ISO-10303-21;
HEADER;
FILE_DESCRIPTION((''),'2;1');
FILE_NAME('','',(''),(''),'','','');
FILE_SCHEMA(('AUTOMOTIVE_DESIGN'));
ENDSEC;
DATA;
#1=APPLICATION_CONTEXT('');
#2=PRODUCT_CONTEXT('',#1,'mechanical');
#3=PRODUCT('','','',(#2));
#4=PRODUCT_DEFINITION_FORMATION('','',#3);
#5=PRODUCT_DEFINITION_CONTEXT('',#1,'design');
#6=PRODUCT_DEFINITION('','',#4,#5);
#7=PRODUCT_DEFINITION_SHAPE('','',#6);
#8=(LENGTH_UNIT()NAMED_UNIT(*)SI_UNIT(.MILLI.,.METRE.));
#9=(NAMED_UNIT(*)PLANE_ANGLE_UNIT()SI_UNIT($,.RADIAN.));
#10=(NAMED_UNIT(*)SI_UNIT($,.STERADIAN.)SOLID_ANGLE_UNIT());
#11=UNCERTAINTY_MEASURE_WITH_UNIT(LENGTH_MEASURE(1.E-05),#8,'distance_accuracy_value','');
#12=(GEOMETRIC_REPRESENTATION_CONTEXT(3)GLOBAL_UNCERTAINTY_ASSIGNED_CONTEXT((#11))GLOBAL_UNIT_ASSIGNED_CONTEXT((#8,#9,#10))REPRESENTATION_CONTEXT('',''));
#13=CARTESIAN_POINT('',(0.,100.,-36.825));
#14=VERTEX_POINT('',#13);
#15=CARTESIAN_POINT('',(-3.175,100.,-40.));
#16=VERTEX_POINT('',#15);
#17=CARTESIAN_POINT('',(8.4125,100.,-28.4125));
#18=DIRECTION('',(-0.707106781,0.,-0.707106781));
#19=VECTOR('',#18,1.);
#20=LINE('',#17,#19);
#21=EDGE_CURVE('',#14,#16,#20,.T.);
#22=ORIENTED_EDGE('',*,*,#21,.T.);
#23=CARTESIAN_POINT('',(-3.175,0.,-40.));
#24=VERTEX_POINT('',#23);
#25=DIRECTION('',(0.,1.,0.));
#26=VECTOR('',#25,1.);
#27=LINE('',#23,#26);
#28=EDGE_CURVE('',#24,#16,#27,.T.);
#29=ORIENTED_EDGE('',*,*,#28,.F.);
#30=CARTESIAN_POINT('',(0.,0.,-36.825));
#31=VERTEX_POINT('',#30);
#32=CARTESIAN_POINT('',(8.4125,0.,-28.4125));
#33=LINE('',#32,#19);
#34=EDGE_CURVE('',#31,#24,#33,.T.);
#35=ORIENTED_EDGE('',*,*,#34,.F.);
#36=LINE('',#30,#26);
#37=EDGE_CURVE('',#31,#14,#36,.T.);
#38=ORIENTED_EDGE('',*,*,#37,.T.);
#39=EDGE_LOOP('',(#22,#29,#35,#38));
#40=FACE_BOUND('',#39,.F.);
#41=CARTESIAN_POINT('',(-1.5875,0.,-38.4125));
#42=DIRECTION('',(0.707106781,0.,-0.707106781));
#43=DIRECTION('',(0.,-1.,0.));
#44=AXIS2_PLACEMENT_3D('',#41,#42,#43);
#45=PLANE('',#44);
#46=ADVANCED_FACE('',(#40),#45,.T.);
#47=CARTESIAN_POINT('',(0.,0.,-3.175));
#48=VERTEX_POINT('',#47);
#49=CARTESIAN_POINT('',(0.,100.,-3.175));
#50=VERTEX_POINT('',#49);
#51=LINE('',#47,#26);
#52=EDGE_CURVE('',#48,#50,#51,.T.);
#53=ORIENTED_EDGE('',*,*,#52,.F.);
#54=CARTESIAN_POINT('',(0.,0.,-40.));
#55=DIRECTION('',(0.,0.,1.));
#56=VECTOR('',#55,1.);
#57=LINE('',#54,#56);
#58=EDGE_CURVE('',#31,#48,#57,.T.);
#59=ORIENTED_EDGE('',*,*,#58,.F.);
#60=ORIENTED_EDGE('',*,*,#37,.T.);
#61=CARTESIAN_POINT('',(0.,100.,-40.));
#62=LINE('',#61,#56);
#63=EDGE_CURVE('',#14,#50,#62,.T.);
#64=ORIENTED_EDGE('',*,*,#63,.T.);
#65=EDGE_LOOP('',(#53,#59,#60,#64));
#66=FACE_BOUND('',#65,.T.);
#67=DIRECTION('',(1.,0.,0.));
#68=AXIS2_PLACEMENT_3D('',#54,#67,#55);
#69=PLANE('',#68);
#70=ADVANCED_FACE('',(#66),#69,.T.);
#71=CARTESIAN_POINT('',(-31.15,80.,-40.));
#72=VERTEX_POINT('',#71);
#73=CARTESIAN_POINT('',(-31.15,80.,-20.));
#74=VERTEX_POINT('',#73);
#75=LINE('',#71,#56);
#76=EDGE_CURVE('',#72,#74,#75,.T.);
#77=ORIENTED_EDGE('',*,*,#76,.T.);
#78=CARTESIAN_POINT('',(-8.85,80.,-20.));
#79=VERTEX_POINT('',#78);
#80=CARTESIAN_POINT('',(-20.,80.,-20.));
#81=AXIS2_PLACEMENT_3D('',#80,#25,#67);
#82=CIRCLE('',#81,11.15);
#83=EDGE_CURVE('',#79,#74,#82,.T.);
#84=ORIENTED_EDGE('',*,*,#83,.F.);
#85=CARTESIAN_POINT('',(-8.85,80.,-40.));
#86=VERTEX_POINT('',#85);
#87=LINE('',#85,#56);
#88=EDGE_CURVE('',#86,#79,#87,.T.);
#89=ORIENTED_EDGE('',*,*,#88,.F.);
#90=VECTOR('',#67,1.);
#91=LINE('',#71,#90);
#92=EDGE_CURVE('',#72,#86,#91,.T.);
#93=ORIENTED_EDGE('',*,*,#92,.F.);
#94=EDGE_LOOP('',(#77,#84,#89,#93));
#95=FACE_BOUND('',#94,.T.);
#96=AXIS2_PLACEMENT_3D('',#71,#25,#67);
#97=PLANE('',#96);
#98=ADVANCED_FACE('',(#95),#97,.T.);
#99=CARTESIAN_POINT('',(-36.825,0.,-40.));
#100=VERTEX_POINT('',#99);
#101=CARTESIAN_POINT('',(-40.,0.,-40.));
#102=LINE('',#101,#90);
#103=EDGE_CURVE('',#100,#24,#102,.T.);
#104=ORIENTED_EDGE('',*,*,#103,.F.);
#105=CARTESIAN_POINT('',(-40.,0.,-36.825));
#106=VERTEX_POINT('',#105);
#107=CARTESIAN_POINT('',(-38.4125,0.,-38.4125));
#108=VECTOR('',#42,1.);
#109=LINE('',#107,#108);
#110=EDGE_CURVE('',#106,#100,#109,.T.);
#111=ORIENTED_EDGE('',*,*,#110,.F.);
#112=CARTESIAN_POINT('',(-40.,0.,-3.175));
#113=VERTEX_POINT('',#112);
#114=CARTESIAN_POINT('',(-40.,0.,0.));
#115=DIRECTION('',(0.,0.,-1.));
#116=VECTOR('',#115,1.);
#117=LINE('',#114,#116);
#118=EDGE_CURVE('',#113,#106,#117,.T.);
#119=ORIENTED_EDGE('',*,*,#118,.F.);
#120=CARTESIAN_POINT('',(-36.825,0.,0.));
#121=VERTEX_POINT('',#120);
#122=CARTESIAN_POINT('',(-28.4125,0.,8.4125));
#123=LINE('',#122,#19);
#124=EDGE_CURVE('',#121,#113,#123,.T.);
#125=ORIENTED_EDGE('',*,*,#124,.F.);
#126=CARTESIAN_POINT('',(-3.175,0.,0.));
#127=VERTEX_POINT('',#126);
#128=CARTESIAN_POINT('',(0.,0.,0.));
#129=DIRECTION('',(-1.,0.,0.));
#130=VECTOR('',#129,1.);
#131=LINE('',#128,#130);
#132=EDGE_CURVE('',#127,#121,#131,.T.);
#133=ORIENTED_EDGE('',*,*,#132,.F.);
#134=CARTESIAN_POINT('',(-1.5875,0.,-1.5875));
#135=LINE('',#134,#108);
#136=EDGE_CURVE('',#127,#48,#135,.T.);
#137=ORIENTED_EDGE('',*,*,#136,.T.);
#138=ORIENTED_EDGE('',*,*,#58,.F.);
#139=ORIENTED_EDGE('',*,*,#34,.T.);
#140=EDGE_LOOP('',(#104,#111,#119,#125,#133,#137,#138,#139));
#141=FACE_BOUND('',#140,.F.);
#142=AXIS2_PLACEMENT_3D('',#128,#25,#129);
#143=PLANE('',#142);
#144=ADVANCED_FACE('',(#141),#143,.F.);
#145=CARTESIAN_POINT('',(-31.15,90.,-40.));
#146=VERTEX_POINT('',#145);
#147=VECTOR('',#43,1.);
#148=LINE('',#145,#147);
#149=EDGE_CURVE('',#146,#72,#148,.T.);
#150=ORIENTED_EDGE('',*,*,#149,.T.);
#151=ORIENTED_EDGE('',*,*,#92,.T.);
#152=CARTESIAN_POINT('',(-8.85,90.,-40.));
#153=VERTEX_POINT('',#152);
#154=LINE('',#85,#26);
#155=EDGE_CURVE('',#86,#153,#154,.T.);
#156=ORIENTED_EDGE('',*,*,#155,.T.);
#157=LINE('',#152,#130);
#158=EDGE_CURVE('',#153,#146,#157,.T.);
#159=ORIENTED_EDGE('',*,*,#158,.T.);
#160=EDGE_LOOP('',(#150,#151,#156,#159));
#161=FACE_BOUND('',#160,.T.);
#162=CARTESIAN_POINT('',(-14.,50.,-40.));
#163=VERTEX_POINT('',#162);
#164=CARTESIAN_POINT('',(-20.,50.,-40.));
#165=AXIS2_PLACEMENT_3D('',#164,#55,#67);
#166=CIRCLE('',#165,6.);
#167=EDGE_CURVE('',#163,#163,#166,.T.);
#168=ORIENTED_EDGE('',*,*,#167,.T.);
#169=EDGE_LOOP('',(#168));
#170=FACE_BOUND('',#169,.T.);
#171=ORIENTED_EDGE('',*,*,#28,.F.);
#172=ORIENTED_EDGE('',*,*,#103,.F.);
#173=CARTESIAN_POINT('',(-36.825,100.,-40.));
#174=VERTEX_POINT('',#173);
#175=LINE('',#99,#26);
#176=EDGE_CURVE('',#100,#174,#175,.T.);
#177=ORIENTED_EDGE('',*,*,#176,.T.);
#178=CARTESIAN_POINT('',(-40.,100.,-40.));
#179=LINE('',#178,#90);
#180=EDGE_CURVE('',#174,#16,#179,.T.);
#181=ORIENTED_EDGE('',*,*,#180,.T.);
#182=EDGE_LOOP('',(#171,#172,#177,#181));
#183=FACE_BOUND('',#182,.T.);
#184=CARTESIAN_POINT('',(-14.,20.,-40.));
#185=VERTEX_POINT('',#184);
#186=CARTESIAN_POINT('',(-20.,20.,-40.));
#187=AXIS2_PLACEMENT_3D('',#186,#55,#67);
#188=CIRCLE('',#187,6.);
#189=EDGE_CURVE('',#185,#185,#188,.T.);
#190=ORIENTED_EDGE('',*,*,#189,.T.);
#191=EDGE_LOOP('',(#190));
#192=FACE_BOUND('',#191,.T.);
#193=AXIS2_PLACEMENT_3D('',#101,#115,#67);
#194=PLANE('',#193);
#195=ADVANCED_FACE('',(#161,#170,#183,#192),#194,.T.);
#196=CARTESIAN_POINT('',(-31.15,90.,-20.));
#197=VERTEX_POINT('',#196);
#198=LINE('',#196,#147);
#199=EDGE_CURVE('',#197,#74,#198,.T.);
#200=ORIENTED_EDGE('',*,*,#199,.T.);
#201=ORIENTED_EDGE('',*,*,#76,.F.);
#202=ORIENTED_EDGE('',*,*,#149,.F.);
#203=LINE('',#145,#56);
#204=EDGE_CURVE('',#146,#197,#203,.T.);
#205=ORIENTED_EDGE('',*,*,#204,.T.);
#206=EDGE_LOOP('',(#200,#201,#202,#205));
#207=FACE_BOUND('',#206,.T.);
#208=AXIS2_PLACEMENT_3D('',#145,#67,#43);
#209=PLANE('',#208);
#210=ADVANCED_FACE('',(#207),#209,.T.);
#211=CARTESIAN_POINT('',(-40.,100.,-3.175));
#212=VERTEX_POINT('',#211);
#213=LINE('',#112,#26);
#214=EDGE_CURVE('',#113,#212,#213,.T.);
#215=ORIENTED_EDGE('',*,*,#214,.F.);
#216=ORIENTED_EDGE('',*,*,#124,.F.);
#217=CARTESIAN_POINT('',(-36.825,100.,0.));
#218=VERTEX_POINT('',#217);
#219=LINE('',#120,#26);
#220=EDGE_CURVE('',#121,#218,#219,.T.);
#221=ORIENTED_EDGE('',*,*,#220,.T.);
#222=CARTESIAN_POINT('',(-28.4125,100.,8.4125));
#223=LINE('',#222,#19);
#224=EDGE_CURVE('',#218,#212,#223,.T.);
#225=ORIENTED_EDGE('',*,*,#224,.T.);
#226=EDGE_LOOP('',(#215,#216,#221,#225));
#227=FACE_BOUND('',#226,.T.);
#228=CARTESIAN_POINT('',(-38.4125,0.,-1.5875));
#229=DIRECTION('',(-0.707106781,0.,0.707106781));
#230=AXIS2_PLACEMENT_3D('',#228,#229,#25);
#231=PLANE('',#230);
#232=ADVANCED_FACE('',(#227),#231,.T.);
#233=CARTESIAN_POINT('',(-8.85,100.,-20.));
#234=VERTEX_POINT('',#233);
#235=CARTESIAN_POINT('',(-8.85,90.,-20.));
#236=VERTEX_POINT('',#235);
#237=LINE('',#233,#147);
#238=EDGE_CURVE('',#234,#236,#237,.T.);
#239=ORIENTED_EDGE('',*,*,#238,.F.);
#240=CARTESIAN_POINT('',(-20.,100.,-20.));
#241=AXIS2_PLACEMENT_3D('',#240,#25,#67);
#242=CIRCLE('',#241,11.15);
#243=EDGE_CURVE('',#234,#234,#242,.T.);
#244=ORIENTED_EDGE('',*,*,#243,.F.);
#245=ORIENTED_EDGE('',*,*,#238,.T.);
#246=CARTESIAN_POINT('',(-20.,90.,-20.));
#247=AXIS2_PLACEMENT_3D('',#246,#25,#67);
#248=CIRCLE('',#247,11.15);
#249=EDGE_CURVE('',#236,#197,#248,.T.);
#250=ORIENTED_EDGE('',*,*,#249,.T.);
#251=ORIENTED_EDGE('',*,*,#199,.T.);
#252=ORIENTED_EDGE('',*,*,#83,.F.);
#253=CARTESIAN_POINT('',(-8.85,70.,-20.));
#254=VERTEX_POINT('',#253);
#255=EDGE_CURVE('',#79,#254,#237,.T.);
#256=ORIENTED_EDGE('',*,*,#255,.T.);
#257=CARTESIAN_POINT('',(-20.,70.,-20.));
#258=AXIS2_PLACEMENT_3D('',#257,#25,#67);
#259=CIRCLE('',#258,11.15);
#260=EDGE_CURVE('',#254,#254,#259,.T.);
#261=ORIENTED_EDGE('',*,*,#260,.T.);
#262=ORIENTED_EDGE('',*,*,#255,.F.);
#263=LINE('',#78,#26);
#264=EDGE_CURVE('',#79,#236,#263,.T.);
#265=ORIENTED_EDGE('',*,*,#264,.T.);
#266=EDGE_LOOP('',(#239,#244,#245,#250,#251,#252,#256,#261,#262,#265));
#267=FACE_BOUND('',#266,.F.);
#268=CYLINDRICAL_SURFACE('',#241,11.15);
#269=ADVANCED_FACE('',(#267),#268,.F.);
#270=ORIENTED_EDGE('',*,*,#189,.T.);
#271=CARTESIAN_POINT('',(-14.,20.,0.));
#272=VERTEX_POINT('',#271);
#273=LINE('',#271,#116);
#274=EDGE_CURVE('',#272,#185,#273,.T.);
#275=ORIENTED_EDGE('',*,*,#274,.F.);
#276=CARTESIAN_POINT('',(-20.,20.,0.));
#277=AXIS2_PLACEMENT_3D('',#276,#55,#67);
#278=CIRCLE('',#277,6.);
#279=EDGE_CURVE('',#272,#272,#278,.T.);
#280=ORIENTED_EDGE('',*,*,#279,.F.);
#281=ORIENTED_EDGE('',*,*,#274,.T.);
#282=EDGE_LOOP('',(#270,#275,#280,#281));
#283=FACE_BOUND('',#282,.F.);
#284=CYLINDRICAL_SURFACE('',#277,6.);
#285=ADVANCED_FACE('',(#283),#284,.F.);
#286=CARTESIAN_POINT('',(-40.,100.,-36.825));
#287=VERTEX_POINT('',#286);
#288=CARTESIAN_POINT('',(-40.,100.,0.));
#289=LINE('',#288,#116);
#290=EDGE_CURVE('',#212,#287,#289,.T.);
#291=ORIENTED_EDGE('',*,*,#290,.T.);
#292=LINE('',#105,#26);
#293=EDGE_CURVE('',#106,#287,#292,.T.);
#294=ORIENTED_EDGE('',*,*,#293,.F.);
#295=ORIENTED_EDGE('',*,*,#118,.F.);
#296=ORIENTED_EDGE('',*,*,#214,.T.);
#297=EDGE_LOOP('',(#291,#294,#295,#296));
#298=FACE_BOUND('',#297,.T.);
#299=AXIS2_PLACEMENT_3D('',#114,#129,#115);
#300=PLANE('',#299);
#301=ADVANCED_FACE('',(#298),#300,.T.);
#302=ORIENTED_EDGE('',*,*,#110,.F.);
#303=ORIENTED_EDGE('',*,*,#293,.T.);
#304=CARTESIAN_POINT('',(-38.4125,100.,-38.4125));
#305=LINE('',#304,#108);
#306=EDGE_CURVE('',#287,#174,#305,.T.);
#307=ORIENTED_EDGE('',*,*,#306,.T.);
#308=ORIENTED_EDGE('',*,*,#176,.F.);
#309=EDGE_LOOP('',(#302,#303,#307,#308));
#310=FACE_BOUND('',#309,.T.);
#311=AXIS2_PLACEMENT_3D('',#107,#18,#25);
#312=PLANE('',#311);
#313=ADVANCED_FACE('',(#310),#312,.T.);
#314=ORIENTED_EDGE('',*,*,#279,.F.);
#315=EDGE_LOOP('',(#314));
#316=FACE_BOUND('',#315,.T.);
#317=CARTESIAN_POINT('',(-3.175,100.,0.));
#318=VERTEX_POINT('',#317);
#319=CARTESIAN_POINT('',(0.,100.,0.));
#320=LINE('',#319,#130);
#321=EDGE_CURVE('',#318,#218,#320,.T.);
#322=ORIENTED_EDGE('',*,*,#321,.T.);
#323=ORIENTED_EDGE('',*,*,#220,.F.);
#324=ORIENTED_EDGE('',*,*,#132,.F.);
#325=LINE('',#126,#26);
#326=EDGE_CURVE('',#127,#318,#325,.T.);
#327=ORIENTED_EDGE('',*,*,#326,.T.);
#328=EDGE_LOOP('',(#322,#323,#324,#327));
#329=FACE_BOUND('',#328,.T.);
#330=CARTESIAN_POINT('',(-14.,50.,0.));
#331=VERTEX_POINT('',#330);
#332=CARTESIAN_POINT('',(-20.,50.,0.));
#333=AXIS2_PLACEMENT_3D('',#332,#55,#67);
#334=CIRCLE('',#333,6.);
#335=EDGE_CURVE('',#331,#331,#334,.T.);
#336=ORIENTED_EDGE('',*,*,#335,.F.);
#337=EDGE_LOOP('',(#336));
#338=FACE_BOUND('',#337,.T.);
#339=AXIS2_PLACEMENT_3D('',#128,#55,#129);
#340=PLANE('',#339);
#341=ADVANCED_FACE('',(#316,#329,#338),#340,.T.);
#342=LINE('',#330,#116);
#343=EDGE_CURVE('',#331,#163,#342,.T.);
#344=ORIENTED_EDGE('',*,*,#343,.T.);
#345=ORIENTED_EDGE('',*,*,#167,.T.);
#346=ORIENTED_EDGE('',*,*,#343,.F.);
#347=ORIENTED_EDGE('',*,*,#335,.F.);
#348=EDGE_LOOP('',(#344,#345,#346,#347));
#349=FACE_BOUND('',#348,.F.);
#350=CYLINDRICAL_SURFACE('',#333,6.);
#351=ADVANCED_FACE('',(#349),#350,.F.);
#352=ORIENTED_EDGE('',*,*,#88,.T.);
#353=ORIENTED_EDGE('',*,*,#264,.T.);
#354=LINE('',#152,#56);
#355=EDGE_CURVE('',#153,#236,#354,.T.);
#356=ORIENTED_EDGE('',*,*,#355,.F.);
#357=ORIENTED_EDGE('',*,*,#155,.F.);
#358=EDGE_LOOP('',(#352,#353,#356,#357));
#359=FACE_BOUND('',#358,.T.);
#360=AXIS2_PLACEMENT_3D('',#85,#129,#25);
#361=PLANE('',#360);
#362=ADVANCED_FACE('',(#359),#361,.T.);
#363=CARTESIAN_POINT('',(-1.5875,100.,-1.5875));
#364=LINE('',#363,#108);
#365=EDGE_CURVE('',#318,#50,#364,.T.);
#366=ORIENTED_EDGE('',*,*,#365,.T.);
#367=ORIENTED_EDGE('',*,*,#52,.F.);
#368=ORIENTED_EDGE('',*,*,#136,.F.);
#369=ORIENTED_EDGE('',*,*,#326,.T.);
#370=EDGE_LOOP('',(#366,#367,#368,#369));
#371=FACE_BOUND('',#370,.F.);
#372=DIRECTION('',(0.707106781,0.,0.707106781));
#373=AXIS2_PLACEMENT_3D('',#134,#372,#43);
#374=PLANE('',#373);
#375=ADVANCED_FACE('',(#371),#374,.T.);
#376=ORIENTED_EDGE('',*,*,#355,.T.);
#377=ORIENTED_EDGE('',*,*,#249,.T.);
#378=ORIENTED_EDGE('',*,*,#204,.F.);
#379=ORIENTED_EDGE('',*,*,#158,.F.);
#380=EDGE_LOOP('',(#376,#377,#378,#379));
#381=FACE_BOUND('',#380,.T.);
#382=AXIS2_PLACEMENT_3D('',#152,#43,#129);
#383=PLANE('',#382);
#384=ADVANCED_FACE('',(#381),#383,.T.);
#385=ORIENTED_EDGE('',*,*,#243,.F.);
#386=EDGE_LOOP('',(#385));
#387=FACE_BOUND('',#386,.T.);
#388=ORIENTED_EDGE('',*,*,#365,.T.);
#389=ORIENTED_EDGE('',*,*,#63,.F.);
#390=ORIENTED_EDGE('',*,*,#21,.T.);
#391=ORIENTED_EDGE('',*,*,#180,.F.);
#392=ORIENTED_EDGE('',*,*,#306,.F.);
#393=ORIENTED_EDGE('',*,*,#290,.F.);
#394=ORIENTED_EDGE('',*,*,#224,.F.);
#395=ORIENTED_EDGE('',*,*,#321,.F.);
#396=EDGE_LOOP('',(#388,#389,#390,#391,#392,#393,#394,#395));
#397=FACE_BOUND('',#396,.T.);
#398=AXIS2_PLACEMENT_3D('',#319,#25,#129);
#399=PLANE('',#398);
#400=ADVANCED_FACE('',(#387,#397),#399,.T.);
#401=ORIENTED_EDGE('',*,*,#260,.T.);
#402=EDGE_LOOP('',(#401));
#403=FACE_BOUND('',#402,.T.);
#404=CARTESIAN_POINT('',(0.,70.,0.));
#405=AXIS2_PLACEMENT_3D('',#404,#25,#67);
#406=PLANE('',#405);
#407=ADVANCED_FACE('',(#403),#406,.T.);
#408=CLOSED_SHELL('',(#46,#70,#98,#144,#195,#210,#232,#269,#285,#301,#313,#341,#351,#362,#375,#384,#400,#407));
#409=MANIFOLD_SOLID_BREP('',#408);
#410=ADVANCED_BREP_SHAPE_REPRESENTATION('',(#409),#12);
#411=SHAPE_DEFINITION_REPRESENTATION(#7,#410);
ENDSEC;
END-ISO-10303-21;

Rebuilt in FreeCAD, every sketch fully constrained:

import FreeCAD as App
import Part
import Sketcher

V = App.Vector


def edges_at(feature, points):
    """Names of the edges that pass closest to the given points."""
    edges = feature.Shape.Edges
    near = lambda p: min(range(len(edges)), key=lambda i: edges[i].distToShape(Part.Vertex(*p))[0])
    return sorted({f"Edge{near(p) + 1}" for p in points})

doc = App.newDocument("Part")
params = doc.addObject("Spreadsheet::Sheet", "Params")
for row, (alias, value) in enumerate([
    ("sketch1_width", "40 mm"),
    ("pad1_length", "100 mm"),
    ("sketch2_diameter", "12 mm"),
    ("pocket1_length", "40 mm"),
    ("sketch3_diameter", "22.3 mm"),
    ("pocket2_length", "30 mm"),
    ("sketch4_height", "10 mm"),
    ("sketch4_width", "22.3 mm"),
    ("pocket3_length", "20 mm"),
    ("chamfer_size", "3.175 mm"),
], start=1):
    params.set(f"A{row}", alias)
    params.set(f"B{row}", "=" + value)
    params.setAlias(f"B{row}", alias)

body = doc.addObject("PartDesign::Body", "Body")

sketch1 = body.newObject("Sketcher::SketchObject", "Sketch")
sketch1.AttachmentSupport = (doc.getObject("XZ_Plane"), [""])
sketch1.MapMode = "FlatFace"
sketch1.addGeometry(Part.LineSegment(V(-40, 0, 0), V(0, 0, 0)), False)
sketch1.addGeometry(Part.LineSegment(V(0, 0, 0), V(0, -40, 0)), False)
sketch1.addGeometry(Part.LineSegment(V(0, -40, 0), V(-40, -40, 0)), False)
sketch1.addGeometry(Part.LineSegment(V(-40, -40, 0), V(-40, 0, 0)), False)
sketch1.addConstraint(Sketcher.Constraint("Coincident", 0, 2, 1, 1))
sketch1.addConstraint(Sketcher.Constraint("Coincident", 1, 2, 2, 1))
sketch1.addConstraint(Sketcher.Constraint("Coincident", 2, 2, 3, 1))
sketch1.addConstraint(Sketcher.Constraint("Coincident", 3, 2, 0, 1))
sketch1.addConstraint(Sketcher.Constraint("Horizontal", 0))
sketch1.addConstraint(Sketcher.Constraint("Vertical", 1))
sketch1.addConstraint(Sketcher.Constraint("Horizontal", 2))
sketch1.addConstraint(Sketcher.Constraint("Vertical", 3))
sketch1.addConstraint(Sketcher.Constraint("Coincident", 0, 2, -1, 1))
sketch1.addConstraint(Sketcher.Constraint("Equal", 2, 1))
sketch1.addConstraint(Sketcher.Constraint("DistanceX", 0, 1, 0, 2, 40.0))
sketch1.setExpression("Constraints[10]", "Params.sketch1_width")
pad1 = body.newObject("PartDesign::Pad", "Pad")
pad1.Profile = sketch1
pad1.setExpression("Length", "Params.pad1_length")
pad1.Reversed = True

sketch2 = body.newObject("Sketcher::SketchObject", "Sketch001")
sketch2.AttachmentSupport = (doc.getObject("XY_Plane"), [""])
sketch2.MapMode = "FlatFace"
sketch2.addGeometry(Part.Circle(V(-20, 20, 0), V(0, 0, 1), 6), False)
sketch2.addGeometry(Part.Circle(V(-20, 50, 0), V(0, 0, 1), 6), False)
sketch2.addConstraint(Sketcher.Constraint("Equal", 0, 1))
sketch2.addConstraint(Sketcher.Constraint("Vertical", 0, 3, 1, 3))
sketch2.addConstraint(Sketcher.Constraint("Diameter", 0, 12.0))
sketch2.addConstraint(Sketcher.Constraint("DistanceX", 0, 3, -1, 1, 20.0))
sketch2.addConstraint(Sketcher.Constraint("DistanceY", -1, 1, 0, 3, 20.0))
sketch2.addConstraint(Sketcher.Constraint("DistanceY", 0, 3, 1, 3, 30.0))
sketch2.setExpression("Constraints[2]", "Params.sketch2_diameter")
pocket1 = body.newObject("PartDesign::Pocket", "Pocket")
pocket1.Profile = sketch2
pocket1.setExpression("Length", "Params.pocket1_length")

sketch3 = body.newObject("Sketcher::SketchObject", "Sketch002")
sketch3.AttachmentSupport = (doc.getObject("XZ_Plane"), [""])
sketch3.MapMode = "FlatFace"
sketch3.AttachmentOffset = App.Placement(V(0, 0, -100), App.Rotation())
sketch3.addGeometry(Part.Circle(V(-20, -20, 0), V(0, 0, 1), 11), False)
sketch3.addConstraint(Sketcher.Constraint("Diameter", 0, 22.3))
sketch3.addConstraint(Sketcher.Constraint("DistanceX", 0, 3, -1, 1, 20.0))
sketch3.addConstraint(Sketcher.Constraint("DistanceY", 0, 3, -1, 1, 20.0))
sketch3.setExpression("Constraints[0]", "Params.sketch3_diameter")
pocket2 = body.newObject("PartDesign::Pocket", "Pocket001")
pocket2.Profile = sketch3
pocket2.setExpression("Length", "Params.pocket2_length")
pocket2.Reversed = True

sketch4 = body.newObject("Sketcher::SketchObject", "Sketch003")
sketch4.AttachmentSupport = (doc.getObject("XY_Plane"), [""])
sketch4.MapMode = "FlatFace"
sketch4.AttachmentOffset = App.Placement(V(0, 0, -40), App.Rotation())
sketch4.addGeometry(Part.LineSegment(V(-31, 90, 0), V(-9, 90, 0)), False)
sketch4.addGeometry(Part.LineSegment(V(-9, 90, 0), V(-9, 80, 0)), False)
sketch4.addGeometry(Part.LineSegment(V(-9, 80, 0), V(-31, 80, 0)), False)
sketch4.addGeometry(Part.LineSegment(V(-31, 80, 0), V(-31, 90, 0)), False)
sketch4.addConstraint(Sketcher.Constraint("Coincident", 0, 2, 1, 1))
sketch4.addConstraint(Sketcher.Constraint("Coincident", 1, 2, 2, 1))
sketch4.addConstraint(Sketcher.Constraint("Coincident", 2, 2, 3, 1))
sketch4.addConstraint(Sketcher.Constraint("Coincident", 3, 2, 0, 1))
sketch4.addConstraint(Sketcher.Constraint("Horizontal", 0))
sketch4.addConstraint(Sketcher.Constraint("Vertical", 1))
sketch4.addConstraint(Sketcher.Constraint("Horizontal", 2))
sketch4.addConstraint(Sketcher.Constraint("Vertical", 3))
sketch4.addConstraint(Sketcher.Constraint("DistanceY", 1, 2, 1, 1, 10.0))
sketch4.addConstraint(Sketcher.Constraint("DistanceX", 0, 1, 0, 2, 22.3))
sketch4.addConstraint(Sketcher.Constraint("DistanceY", -1, 1, 0, 2, 90.0))
sketch4.addConstraint(Sketcher.Constraint("DistanceX", 0, 2, -1, 1, 8.85))
sketch4.setExpression("Constraints[8]", "Params.sketch4_height")
sketch4.setExpression("Constraints[9]", "Params.sketch4_width")
pocket3 = body.newObject("PartDesign::Pocket", "Pocket002")
pocket3.Profile = sketch4
pocket3.setExpression("Length", "Params.pocket3_length")
pocket3.Reversed = True
doc.recompute()

chamfer = body.newObject("PartDesign::Chamfer", "Chamfer")
chamfer.Base = (pocket3, edges_at(pocket3, [
    (-40, 50, 0),
    (-40, 50, -40),
    (0, 50, -40),
    (0, 50, 0),
]))
chamfer.setExpression("Size", "Params.chamfer_size")

doc.recompute()
